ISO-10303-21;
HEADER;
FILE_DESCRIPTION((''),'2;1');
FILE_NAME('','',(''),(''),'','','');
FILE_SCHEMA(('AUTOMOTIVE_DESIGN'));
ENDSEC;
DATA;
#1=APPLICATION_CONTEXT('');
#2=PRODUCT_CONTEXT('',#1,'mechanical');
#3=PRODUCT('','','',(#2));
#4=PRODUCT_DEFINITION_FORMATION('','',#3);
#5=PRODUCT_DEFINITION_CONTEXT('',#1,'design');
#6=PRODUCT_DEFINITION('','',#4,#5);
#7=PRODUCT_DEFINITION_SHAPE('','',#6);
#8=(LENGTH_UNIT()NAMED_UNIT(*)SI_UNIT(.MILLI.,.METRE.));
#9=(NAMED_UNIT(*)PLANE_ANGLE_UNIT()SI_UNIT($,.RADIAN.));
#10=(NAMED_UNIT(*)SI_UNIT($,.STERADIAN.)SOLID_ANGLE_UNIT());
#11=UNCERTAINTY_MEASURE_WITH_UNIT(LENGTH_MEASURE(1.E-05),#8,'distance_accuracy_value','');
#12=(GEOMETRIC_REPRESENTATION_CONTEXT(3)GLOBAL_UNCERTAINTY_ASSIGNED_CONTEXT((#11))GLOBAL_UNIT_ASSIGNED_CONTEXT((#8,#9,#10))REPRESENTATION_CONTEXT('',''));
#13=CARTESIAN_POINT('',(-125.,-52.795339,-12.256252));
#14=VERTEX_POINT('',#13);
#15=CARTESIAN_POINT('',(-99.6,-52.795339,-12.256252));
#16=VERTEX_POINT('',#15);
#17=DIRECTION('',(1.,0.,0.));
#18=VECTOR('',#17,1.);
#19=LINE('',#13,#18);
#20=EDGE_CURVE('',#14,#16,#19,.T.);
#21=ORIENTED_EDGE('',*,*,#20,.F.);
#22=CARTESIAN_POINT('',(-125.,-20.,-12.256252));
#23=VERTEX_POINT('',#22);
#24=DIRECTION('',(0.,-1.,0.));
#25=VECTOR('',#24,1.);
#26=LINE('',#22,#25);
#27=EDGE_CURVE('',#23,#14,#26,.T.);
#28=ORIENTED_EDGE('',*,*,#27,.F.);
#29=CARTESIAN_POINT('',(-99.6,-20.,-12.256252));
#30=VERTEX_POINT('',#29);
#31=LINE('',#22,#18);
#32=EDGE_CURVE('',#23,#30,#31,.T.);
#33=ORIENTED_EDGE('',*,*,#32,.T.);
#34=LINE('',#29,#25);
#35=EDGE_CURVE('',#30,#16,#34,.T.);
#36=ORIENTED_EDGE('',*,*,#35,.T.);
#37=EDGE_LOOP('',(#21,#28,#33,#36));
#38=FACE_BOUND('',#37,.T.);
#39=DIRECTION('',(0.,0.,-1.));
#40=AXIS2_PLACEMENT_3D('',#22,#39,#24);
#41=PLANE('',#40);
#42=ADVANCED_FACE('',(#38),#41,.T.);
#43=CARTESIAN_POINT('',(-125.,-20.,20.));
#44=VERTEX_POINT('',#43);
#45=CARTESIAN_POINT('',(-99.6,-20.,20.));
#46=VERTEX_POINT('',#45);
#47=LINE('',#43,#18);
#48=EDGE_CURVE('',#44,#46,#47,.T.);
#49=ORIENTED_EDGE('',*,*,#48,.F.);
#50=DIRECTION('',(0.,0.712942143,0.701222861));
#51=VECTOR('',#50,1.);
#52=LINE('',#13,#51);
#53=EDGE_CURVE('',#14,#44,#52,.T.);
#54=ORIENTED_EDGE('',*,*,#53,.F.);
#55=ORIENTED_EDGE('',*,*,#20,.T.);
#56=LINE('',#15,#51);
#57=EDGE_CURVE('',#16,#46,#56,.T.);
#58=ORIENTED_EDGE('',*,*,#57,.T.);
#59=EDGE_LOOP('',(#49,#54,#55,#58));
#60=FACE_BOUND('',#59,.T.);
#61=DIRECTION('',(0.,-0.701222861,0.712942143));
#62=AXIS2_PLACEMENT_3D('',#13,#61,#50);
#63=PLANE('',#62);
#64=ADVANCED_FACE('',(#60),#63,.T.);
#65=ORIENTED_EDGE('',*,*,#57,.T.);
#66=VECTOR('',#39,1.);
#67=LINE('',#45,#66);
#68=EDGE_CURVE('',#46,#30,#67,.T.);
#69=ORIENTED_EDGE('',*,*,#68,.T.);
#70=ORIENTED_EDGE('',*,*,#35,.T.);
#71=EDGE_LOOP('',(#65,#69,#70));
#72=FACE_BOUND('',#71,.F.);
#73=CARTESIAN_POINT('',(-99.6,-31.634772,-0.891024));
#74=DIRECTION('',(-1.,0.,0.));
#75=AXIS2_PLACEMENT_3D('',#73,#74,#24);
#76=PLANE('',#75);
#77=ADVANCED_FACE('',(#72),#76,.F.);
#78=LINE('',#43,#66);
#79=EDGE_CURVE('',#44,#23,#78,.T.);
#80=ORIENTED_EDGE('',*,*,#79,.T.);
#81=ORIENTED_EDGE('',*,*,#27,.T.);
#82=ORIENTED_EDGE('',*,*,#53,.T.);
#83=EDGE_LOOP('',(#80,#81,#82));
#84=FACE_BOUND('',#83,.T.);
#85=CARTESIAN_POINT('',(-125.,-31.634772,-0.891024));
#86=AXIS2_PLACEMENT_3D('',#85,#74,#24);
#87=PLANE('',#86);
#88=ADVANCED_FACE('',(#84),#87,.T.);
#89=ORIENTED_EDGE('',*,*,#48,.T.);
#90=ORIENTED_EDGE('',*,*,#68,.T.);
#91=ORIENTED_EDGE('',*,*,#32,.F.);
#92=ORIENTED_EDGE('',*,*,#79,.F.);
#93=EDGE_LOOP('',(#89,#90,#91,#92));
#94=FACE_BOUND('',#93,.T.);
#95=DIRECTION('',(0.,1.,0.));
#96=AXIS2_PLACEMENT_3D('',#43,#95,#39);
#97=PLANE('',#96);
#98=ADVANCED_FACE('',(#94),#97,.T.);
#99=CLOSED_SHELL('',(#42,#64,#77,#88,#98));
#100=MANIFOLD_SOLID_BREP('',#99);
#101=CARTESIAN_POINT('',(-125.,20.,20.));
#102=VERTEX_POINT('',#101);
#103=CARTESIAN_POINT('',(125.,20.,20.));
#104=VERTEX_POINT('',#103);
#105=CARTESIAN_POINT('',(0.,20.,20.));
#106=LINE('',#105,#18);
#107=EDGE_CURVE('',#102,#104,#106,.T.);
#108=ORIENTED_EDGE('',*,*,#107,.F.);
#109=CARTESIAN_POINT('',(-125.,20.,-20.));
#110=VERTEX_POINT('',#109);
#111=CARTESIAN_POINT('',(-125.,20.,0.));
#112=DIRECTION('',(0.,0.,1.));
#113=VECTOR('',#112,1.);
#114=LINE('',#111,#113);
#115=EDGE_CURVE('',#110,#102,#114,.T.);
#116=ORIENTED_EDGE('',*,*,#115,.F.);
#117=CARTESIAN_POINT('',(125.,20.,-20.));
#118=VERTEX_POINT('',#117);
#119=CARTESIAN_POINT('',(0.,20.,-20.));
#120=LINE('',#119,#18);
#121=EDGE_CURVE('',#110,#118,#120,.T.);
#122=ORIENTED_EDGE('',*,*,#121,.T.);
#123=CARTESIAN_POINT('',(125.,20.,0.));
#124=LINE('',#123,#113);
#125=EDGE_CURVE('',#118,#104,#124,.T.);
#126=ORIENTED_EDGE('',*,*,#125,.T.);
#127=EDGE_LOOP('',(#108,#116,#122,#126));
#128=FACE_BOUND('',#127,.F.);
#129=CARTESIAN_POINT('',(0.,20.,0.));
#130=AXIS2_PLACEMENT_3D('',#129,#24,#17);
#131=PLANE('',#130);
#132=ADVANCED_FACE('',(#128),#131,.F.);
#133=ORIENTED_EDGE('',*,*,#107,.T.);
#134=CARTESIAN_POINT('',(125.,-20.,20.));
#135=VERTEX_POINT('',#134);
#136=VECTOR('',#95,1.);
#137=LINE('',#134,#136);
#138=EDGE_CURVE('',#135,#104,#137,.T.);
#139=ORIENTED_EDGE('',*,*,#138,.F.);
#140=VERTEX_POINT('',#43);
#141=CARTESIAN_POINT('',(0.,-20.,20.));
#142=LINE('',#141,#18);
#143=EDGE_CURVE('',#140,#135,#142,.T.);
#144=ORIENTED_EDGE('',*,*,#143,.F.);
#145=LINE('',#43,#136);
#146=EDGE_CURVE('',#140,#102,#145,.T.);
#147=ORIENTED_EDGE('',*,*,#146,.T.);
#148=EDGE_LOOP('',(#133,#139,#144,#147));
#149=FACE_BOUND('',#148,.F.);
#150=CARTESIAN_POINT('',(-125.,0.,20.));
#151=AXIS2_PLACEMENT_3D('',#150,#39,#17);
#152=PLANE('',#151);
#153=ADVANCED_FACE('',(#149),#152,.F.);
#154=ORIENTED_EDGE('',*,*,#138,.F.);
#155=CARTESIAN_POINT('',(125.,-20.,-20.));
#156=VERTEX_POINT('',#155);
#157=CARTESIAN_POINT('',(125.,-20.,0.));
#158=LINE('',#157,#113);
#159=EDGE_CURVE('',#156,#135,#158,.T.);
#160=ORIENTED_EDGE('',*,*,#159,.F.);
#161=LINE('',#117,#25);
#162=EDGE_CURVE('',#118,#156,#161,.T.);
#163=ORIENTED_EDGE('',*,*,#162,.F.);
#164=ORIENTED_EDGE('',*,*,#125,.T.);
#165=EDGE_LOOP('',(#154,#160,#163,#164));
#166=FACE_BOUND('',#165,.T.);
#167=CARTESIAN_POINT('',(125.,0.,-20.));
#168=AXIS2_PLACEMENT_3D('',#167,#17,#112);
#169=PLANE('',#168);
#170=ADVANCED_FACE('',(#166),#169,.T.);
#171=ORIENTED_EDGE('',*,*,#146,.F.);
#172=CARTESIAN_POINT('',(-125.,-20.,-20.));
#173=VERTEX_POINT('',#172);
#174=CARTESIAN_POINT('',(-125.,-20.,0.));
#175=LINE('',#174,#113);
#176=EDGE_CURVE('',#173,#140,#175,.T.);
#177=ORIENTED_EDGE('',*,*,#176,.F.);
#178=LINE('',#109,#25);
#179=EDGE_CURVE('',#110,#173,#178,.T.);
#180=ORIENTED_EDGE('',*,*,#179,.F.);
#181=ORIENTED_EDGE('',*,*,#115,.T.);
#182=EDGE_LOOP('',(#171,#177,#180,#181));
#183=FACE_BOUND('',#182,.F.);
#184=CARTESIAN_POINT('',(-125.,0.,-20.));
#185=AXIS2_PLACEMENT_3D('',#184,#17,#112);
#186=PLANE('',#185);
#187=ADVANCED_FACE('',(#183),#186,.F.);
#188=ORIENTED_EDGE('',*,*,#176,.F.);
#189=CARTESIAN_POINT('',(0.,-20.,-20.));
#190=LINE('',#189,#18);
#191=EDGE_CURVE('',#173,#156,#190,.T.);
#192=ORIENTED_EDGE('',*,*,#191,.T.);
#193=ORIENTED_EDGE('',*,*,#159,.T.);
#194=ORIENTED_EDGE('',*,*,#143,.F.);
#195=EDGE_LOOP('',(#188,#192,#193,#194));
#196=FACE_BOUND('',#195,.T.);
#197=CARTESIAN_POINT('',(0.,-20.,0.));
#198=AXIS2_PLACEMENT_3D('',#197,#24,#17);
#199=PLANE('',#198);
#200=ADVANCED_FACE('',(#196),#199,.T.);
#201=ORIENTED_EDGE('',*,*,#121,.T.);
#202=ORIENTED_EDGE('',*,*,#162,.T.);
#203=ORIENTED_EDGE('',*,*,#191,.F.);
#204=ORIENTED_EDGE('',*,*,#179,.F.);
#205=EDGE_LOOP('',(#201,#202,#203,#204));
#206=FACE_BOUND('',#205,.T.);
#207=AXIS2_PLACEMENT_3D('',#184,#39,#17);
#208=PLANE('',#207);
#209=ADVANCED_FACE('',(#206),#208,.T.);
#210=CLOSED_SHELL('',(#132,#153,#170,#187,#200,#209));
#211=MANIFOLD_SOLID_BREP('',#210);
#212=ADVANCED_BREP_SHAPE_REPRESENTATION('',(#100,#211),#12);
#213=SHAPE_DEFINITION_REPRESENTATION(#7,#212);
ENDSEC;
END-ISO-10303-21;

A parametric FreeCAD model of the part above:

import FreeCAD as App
import Part
import Sketcher

V = App.Vector
Q = App.Units.Quantity


def add_polygon(sketch, points):
    """Adds a closed chain of lines whose ends are joined by coincident constraints."""
    first, n = sketch.GeometryCount, len(points)
    for a, b in zip(points, points[1:] + points[:1]):
        sketch.addGeometry(Part.LineSegment(App.Vector(*a, 0), App.Vector(*b, 0)), False)
    for i in range(n):
        sketch.addConstraint(Sketcher.Constraint("Coincident", first + i, 2, first + (i + 1) % n, 1))

doc = App.newDocument("Part")
params = doc.addObject("Spreadsheet::Sheet", "Params")
for row, (alias, value) in enumerate([
    ("sketch1_width", "250 mm"),
    ("sketch1_height", "40 mm"),
    ("pad1_length", "20 mm"),
    ("pad1_length2", "20 mm"),
    ("sketch2_length", "46.000001 mm"),
    ("pad2_length", "25.4 mm"),
], start=1):
    params.set(f"A{row}", alias)
    params.set(f"B{row}", "=" + value)
    params.setAlias(f"B{row}", alias)

body = doc.addObject("PartDesign::Body", "Body")

# Sketch on XZ plane
sketch1 = body.newObject("Sketcher::SketchObject", "Sketch")
sketch1.AttachmentSupport = (doc.getObject("XZ_Plane"), [""])
sketch1.MapMode = "FlatFace"
add_polygon(sketch1, [(-125, 20), (-125, -20), (125, -20), (125, 20)])  # lines 0-3
sketch1.addConstraint([
    Sketcher.Constraint("Vertical", 0),
    Sketcher.Constraint("Horizontal", 1),
    Sketcher.Constraint("Vertical", 2),
    Sketcher.Constraint("Horizontal", 3),
    Sketcher.Constraint("Symmetric", 0, 2, 2, 2, -1, 1),
    Sketcher.Constraint("DistanceX", 1, 1, 1, 2, Q("250 mm")),
    Sketcher.Constraint("DistanceY", 0, 2, 0, 1, Q("40 mm")),
])
sketch1.setExpression("Constraints[9]", "Params.sketch1_width")
sketch1.setExpression("Constraints[10]", "Params.sketch1_height")
pad1 = body.newObject("PartDesign::Pad", "Pad")
pad1.Profile = sketch1
pad1.Type = "TwoLengths"
pad1.setExpression("Length", "Params.pad1_length")
pad1.setExpression("Length2", "Params.pad1_length2")
body2 = doc.addObject("PartDesign::Body", "Body001")

# Sketch on YZ plane
sketch2 = body2.newObject("Sketcher::SketchObject", "Sketch001")
sketch2.AttachmentSupport = (doc.getObject("YZ_Plane001"), [""])
sketch2.MapMode = "FlatFace"
sketch2.AttachmentOffset = App.Placement(V(0, 0, -125), App.Rotation())
add_polygon(sketch2, [(-20, 20), (-20, -12), (-53, -12)])  # lines 0-2
sketch2.addConstraint([
    Sketcher.Constraint("Vertical", 0),
    Sketcher.Constraint("Horizontal", 1),
    Sketcher.Constraint("Distance", 2, Q("46.000001 mm")),
    Sketcher.Constraint("DistanceX", 0, 2, -1, 1, Q("20 mm")),
    Sketcher.Constraint("DistanceY", -1, 1, 2, 2, Q("20 mm")),
    Sketcher.Constraint("DistanceX", 1, 2, 1, 1, Q("32.795339 mm")),
])
sketch2.setExpression("Constraints[5]", "Params.sketch2_length")
pad2 = body2.newObject("PartDesign::Pad", "Pad001")
pad2.Profile = sketch2
pad2.setExpression("Length", "Params.pad2_length")

doc.recompute()
